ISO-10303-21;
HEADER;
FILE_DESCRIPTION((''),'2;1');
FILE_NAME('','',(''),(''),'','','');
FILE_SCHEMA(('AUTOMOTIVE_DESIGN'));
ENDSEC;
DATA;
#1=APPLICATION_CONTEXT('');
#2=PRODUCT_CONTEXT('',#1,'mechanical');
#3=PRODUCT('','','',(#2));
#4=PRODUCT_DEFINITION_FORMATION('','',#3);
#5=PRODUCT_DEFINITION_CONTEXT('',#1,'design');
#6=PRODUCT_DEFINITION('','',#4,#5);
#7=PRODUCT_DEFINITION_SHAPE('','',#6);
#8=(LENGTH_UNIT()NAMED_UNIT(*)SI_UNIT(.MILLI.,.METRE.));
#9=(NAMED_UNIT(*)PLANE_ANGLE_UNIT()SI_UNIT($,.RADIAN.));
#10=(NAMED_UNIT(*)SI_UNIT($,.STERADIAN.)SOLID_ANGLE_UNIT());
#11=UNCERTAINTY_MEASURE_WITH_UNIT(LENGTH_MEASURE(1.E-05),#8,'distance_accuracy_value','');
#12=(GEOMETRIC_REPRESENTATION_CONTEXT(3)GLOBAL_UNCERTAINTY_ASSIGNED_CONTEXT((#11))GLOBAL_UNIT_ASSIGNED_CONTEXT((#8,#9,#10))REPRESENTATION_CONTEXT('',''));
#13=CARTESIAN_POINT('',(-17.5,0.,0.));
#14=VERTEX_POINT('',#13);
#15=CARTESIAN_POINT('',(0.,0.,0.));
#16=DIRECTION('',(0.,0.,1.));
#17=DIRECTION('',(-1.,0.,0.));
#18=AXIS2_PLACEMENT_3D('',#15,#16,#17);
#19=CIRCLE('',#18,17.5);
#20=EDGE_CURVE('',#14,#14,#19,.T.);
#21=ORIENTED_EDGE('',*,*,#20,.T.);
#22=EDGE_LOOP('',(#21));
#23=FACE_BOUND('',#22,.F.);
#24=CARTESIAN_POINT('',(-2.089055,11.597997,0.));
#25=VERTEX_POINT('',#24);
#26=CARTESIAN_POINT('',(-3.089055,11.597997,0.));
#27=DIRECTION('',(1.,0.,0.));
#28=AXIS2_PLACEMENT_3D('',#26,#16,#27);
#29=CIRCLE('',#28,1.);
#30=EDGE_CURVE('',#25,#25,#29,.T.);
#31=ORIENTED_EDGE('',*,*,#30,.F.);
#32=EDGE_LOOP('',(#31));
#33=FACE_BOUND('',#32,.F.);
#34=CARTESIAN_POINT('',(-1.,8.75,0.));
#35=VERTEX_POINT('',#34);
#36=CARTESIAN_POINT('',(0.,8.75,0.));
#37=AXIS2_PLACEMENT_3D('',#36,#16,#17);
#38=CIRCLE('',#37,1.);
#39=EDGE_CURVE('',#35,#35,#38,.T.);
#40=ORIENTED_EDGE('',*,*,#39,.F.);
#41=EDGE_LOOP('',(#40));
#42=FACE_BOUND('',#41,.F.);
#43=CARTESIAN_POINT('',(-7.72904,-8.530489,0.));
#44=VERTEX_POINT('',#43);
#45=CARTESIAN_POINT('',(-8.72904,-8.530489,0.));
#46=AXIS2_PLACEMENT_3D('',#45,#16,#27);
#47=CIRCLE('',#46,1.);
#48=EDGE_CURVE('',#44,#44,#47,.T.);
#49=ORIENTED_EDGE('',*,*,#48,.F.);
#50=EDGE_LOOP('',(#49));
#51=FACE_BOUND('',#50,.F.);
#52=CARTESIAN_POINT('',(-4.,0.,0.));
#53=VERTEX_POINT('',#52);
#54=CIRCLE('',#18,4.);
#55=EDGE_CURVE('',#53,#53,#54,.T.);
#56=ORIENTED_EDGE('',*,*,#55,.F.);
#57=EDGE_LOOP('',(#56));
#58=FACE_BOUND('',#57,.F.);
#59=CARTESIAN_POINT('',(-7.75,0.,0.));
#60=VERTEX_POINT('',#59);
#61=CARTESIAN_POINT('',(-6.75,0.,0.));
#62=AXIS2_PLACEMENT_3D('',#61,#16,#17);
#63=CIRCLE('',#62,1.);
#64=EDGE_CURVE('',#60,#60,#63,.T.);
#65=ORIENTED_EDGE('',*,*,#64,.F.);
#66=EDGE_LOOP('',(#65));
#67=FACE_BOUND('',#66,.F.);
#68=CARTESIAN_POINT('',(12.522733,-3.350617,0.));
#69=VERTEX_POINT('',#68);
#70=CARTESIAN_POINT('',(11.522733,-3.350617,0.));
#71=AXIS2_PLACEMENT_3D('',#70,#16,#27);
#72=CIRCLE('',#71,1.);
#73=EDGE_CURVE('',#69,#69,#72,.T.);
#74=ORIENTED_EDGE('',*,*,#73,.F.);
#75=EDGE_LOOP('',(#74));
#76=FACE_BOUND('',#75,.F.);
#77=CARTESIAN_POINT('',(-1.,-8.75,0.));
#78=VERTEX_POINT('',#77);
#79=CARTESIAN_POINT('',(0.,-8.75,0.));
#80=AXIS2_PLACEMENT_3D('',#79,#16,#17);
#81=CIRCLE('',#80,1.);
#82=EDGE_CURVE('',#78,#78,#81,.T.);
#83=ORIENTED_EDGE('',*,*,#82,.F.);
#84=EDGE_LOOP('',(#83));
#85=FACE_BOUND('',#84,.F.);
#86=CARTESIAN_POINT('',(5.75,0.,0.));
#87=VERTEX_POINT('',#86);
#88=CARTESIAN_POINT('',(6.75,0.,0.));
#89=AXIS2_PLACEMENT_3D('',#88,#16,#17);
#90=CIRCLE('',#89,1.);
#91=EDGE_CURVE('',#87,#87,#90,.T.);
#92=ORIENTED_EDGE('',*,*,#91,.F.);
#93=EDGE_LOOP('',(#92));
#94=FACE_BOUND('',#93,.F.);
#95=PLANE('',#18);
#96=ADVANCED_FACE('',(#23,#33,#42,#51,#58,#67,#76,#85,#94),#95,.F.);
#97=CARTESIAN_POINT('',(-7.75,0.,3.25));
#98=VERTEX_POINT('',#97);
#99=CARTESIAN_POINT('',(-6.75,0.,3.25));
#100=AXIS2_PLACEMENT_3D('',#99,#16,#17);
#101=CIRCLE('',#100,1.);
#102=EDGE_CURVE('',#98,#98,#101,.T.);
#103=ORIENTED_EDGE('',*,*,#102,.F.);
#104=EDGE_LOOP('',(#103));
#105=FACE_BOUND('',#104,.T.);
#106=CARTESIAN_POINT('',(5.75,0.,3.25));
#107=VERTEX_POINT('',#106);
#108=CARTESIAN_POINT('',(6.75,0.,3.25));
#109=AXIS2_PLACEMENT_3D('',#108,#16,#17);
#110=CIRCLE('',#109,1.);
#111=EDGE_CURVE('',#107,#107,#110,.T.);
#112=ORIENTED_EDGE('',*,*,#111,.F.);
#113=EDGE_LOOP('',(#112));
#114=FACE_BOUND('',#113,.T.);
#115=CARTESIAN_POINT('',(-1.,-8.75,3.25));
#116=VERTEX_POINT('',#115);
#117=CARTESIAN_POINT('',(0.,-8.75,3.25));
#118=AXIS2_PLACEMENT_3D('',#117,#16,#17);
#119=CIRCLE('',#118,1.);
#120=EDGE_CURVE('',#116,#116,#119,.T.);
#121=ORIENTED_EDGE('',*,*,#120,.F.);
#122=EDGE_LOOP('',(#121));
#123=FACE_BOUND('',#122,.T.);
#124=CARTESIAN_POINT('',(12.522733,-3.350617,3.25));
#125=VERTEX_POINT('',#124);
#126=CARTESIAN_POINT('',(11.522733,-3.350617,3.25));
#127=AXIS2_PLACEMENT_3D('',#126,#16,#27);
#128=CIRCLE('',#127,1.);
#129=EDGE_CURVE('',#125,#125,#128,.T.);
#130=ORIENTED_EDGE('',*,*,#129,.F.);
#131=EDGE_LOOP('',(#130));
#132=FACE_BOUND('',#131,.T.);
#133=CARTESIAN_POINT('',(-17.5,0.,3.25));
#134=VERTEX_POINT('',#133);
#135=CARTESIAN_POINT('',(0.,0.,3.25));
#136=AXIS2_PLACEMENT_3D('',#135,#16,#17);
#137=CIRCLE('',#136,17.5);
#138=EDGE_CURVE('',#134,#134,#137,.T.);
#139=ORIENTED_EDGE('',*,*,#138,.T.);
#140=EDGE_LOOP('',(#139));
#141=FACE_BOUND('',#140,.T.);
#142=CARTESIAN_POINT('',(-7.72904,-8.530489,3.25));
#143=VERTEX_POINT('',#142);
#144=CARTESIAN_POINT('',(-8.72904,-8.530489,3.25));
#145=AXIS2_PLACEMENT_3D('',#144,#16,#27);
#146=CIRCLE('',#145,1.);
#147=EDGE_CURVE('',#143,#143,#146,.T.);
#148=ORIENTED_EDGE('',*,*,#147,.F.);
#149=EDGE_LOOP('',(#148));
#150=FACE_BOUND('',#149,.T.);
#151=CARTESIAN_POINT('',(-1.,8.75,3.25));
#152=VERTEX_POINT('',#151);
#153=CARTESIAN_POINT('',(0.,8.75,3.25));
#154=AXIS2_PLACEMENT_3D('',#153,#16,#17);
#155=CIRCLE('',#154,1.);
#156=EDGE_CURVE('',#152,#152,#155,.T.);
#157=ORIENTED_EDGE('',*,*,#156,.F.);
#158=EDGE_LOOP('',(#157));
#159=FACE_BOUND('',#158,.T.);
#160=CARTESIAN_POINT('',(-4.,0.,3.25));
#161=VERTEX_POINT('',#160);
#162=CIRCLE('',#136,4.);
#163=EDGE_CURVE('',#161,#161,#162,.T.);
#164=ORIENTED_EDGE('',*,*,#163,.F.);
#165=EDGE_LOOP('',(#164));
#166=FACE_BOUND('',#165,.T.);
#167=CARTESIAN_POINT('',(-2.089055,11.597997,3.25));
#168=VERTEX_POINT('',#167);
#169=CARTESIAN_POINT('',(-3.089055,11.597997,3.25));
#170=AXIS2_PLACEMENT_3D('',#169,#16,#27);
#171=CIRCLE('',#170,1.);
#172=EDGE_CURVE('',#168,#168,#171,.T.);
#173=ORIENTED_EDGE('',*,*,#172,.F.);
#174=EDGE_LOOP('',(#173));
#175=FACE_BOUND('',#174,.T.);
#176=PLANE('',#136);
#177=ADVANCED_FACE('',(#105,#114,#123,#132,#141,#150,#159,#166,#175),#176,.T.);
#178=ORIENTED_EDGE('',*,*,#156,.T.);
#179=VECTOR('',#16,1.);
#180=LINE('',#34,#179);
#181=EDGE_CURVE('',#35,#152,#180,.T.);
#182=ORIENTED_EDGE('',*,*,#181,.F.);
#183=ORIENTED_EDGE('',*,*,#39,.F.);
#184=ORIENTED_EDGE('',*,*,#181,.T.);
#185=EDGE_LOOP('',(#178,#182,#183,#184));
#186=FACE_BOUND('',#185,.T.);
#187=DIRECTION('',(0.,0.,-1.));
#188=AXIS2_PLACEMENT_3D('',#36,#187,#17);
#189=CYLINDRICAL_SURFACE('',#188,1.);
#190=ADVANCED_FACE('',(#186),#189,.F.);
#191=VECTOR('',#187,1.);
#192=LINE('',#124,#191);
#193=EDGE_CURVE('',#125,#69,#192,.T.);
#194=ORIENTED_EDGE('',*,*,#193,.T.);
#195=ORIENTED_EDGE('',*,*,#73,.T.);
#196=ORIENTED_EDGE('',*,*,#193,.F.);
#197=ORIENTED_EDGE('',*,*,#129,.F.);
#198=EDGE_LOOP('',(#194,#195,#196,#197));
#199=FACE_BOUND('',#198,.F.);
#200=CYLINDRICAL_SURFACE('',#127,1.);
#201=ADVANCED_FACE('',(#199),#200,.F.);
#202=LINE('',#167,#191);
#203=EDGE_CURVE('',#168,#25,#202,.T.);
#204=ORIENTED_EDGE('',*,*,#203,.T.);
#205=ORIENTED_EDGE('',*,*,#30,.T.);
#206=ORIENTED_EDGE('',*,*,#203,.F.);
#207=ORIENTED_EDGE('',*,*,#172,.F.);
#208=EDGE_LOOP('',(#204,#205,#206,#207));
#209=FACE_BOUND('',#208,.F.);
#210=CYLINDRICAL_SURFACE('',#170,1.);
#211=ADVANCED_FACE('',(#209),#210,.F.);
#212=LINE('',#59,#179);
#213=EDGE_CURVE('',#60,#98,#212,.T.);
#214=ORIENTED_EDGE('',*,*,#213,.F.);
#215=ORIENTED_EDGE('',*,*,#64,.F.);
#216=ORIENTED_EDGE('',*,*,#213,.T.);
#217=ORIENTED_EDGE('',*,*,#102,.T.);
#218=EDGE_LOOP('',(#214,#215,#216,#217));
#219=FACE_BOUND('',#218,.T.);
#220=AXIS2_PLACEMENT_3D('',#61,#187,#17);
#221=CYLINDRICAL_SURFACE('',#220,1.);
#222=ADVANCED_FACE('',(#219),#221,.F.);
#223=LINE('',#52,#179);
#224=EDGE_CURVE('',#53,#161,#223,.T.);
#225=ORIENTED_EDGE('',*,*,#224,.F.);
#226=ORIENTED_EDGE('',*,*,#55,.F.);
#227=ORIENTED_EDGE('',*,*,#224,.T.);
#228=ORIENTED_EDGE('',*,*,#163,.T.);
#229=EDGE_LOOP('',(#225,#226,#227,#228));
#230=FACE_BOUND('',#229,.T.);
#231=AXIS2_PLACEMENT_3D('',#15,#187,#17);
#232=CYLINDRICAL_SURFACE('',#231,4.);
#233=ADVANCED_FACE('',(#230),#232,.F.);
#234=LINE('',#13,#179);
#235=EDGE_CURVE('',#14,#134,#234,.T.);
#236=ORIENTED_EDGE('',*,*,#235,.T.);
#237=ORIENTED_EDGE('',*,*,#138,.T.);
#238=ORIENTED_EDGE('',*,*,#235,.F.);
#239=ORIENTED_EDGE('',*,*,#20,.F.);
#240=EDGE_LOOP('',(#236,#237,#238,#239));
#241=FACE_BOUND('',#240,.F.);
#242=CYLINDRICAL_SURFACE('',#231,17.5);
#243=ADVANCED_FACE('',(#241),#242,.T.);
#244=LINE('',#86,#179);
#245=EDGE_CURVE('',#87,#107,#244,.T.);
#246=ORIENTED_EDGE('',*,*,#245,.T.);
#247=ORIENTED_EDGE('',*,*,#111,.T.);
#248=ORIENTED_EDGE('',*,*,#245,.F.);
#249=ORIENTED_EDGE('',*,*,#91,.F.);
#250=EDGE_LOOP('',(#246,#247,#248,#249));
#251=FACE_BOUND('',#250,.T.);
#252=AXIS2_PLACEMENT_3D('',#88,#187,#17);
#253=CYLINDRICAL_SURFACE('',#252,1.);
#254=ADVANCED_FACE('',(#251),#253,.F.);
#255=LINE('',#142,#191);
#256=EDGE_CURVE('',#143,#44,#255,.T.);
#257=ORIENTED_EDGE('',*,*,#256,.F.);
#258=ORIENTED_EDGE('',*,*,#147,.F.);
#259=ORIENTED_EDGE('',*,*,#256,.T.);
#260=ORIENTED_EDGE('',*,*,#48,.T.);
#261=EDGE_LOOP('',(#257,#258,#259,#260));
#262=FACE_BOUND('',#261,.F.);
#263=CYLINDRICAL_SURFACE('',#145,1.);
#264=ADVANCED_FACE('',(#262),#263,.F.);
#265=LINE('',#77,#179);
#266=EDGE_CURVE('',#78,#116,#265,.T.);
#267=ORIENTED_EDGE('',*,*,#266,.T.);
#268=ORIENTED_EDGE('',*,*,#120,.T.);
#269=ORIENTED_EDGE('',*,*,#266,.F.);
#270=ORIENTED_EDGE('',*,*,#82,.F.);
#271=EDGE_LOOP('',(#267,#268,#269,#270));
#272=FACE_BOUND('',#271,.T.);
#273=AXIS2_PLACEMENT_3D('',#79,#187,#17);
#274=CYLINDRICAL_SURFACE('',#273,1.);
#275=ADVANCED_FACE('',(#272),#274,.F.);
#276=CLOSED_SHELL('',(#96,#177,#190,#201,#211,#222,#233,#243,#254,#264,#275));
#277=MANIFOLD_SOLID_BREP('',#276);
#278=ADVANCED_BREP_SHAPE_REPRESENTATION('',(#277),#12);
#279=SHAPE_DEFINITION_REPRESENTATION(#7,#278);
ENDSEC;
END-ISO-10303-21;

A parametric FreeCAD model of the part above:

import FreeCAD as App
import Part
import Sketcher
from FreeCAD import Vector
Q = App.Units.Quantity

doc = App.newDocument("Part")
body = doc.addObject("PartDesign::Body", "Body")

# Sketch on XY plane
sketch1 = body.newObject("Sketcher::SketchObject", "Sketch")
sketch1.AttachmentSupport = (doc.getObject("XY_Plane"), [""])
sketch1.MapMode = "FlatFace"
sketch1.addGeometry([
    Part.Circle(Vector(0, 0, 0), Vector(0, 0, 1), 17.5),  # 0
    Part.Circle(Vector(0, 8.8, 0), Vector(0, 0, 1), 1),  # 1
    Part.Circle(Vector(6.8, 0, 0), Vector(0, 0, 1), 1),  # 2
    Part.Circle(Vector(0, -8.8, 0), Vector(0, 0, 1), 1),  # 3
    Part.Circle(Vector(0, 0, 0), Vector(0, 0, 1), 4),  # 4
    Part.Circle(Vector(-6.8, 0, 0), Vector(0, 0, 1), 1),  # 5
], False)
sketch1.addConstraint([
    Sketcher.Constraint("Coincident", 0, 3, -1, 1),
    Sketcher.Constraint("Coincident", 4, 3, -1, 1),
    Sketcher.Constraint("Equal", 1, 2),
    Sketcher.Constraint("Equal", 2, 3),
    Sketcher.Constraint("Equal", 3, 5),
    Sketcher.Constraint("Symmetric", 1, 3, 3, 3, -1, 1),
    Sketcher.Constraint("Symmetric", 2, 3, 5, 3, -1, 1),
    Sketcher.Constraint("PointOnObject", 1, 3, -2),
    Sketcher.Constraint("PointOnObject", 2, 3, -1),
    Sketcher.Constraint("Diameter", 0, Q("35 mm")),
    Sketcher.Constraint("Diameter", 1, Q("2 mm")),
    Sketcher.Constraint("Diameter", 4, Q("8 mm")),
    Sketcher.Constraint("DistanceY", 3, 3, 1, 3, Q("17.5 mm")),
    Sketcher.Constraint("DistanceX", 5, 3, 2, 3, Q("13.5 mm")),
])
pad1 = body.newObject("PartDesign::Pad", "Pad")
pad1.Profile = sketch1
pad1.Length = 3.25

# Sketch on XY plane
sketch2 = body.newObject("Sketcher::SketchObject", "Sketch001")
sketch2.AttachmentSupport = (doc.getObject("XY_Plane"), [""])
sketch2.MapMode = "FlatFace"
sketch2.AttachmentOffset = App.Placement(Vector(0, 0, 3.25), App.Rotation())
sketch2.addGeometry([
    Part.Circle(Vector(11.5, -3.4, 0), Vector(0, 0, 1), 1),
    Part.Circle(Vector(-8.7, -8.5, 0), Vector(0, 0, 1), 1),
    Part.Circle(Vector(-3.1, 11.6, 0), Vector(0, 0, 1), 1),
], False)
sketch2.addConstraint([
    Sketcher.Constraint("Equal", 0, 1),
    Sketcher.Constraint("Equal", 1, 2),
    Sketcher.Constraint("Diameter", 0, Q("2 mm")),
    Sketcher.Constraint("DistanceX", 1, 3, -1, 1, Q("8.72904 mm")),
    Sketcher.Constraint("DistanceY", 1, 3, -1, 1, Q("8.530489 mm")),
    Sketcher.Constraint("DistanceX", -1, 1, 0, 3, Q("11.522733 mm")),
    Sketcher.Constraint("DistanceY", 0, 3, -1, 1, Q("3.350617 mm")),
    Sketcher.Constraint("DistanceX", 2, 3, -1, 1, Q("3.089055 mm")),
    Sketcher.Constraint("DistanceY", -1, 1, 2, 3, Q("11.597997 mm")),
])
pocket1 = body.newObject("PartDesign::Pocket", "Pocket")
pocket1.Profile = sketch2
pocket1.Type = "ThroughAll"

doc.recompute()
